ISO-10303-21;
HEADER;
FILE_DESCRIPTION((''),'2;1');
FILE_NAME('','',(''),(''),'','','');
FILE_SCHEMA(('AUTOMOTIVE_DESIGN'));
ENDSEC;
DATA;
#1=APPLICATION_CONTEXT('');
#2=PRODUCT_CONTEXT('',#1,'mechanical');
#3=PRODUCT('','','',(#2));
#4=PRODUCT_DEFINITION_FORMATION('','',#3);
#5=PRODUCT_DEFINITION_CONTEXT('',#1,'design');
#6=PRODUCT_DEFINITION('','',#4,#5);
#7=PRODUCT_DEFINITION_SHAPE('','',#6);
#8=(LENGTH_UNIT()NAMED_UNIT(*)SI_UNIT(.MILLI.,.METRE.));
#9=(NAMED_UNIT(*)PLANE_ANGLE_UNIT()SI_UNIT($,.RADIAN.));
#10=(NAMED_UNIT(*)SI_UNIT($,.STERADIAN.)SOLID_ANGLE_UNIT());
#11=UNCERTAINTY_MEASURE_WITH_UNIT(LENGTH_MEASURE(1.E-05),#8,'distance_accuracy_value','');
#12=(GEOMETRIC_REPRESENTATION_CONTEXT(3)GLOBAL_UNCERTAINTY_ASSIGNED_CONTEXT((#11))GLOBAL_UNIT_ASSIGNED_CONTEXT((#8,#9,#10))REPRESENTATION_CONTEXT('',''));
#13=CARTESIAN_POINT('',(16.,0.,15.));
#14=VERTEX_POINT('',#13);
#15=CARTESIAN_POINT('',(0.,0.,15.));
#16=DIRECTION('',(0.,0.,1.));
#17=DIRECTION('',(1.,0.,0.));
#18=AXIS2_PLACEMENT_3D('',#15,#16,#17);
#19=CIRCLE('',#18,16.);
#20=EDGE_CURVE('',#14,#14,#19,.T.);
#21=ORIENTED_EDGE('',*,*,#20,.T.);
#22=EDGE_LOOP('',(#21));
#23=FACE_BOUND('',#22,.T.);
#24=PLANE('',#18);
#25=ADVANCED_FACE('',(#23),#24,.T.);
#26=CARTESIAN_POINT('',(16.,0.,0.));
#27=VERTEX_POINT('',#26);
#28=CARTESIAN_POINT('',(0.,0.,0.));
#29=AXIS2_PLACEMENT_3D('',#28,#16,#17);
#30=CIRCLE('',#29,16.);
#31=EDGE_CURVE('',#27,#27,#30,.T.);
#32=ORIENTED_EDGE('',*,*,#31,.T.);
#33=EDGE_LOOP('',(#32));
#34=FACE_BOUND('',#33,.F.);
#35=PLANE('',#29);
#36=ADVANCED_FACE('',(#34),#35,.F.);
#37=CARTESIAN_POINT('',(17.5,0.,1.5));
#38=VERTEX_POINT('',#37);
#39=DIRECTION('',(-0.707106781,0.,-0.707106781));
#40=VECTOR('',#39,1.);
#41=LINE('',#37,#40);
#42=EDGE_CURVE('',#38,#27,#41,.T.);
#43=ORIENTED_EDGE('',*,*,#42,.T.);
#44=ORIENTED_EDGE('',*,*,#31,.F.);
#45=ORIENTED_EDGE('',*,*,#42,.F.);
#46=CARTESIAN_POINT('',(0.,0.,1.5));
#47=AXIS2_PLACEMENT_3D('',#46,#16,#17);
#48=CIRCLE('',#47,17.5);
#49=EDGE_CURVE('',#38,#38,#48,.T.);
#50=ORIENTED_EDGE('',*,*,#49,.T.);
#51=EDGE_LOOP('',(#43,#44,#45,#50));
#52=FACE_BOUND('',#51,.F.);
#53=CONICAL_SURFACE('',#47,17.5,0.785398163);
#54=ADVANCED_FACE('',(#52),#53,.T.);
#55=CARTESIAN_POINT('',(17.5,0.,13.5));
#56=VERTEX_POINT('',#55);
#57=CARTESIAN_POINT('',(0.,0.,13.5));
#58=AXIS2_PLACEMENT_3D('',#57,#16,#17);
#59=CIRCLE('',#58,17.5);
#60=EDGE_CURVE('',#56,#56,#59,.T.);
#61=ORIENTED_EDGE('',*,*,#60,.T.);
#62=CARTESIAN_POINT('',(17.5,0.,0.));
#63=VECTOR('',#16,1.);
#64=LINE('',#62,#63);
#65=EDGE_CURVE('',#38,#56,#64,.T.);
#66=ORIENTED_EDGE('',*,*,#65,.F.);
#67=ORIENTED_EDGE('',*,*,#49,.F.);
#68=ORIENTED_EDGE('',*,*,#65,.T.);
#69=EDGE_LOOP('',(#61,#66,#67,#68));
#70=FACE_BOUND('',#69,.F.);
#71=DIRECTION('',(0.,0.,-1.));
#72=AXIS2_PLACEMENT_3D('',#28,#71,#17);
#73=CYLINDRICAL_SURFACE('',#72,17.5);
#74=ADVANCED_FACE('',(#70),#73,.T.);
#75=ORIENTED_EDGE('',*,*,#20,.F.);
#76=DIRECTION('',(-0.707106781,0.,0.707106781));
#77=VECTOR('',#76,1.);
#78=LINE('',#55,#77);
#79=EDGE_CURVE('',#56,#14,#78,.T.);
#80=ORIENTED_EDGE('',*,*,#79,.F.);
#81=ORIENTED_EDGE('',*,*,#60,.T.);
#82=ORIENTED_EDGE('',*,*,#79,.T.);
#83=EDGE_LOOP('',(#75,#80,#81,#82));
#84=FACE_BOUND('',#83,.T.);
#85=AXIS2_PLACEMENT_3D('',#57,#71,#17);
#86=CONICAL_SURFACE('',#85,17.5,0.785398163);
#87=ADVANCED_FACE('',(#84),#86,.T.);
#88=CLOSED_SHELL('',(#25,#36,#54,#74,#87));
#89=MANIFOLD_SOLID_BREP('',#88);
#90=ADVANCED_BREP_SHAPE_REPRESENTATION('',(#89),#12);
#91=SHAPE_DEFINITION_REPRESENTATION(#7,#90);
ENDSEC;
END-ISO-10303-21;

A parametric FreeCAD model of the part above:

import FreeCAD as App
import Part
import Sketcher
from FreeCAD import Vector


def edges_at(feature, points):
    """Names of the edges that pass closest to the given points."""
    edges = feature.Shape.Edges
    near = lambda p: min(range(len(edges)), key=lambda i: edges[i].distToShape(Part.Vertex(*p))[0])
    return sorted({f"Edge{near(p) + 1}" for p in points})

doc = App.newDocument("Part")
body = doc.addObject("PartDesign::Body", "Body")

# Sketch on XY plane
sketch1 = body.newObject("Sketcher::SketchObject", "Sketch")
sketch1.AttachmentSupport = (doc.getObject("XY_Plane"), [""])
sketch1.MapMode = "FlatFace"
sketch1.addGeometry(Part.Circle(Vector(-49.016222, 3.647485, 0), Vector(0, 0, 1), 1.5), False)
sketch1.addConstraint(Sketcher.Constraint("Diameter", 0, 3.0))
sketch1.addConstraint(Sketcher.Constraint("DistanceX", 0, 3, -1, 1, 49.016222))
sketch1.addConstraint(Sketcher.Constraint("DistanceY", -1, 1, 0, 3, 3.647485))
pad1 = body.newObject("PartDesign::Pad", "Pad")
pad1.Profile = sketch1
pad1.Length = 15
doc.recompute()

chamfer = body.newObject("PartDesign::Chamfer", "Chamfer")
chamfer.Base = (pad1, edges_at(pad1, [(-50.516, 3.647, 15)]))
chamfer.Size = 1.5
body2 = doc.addObject("PartDesign::Body", "Body001")

# Sketch on XY plane
sketch2 = body2.newObject("Sketcher::SketchObject", "Sketch001")
sketch2.AttachmentSupport = (doc.getObject("XY_Plane001"), [""])
sketch2.MapMode = "FlatFace"
sketch2.addGeometry(Part.Circle(Vector(0, 0, 0), Vector(0, 0, 1), 17.5), False)
sketch2.addConstraint(Sketcher.Constraint("Coincident", 0, 3, -1, 1))
sketch2.addConstraint(Sketcher.Constraint("Diameter", 0, 35.0))
pad2 = body2.newObject("PartDesign::Pad", "Pad001")
pad2.Profile = sketch2
pad2.Length = 15
doc.recompute()

chamfer2 = body2.newObject("PartDesign::Chamfer", "Chamfer001")
chamfer2.Base = (pad2, ["Edge1"])
chamfer2.UseAllEdges = True
chamfer2.Size = 1.5
body.Visibility = False

doc.recompute()
